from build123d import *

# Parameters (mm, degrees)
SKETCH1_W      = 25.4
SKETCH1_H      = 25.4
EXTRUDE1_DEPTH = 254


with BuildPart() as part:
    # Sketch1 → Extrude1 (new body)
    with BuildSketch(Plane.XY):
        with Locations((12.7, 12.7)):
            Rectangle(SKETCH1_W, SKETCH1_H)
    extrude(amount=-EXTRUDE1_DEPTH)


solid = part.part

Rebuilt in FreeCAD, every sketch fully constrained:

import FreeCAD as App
import Part
import Sketcher
Q = App.Units.Quantity


def add_polygon(sketch, points):
    """Adds a closed chain of lines whose ends are joined by coincident constraints."""
    first, n = sketch.GeometryCount, len(points)
    for a, b in zip(points, points[1:] + points[:1]):
        sketch.addGeometry(Part.LineSegment(App.Vector(*a, 0), App.Vector(*b, 0)), False)
    for i in range(n):
        sketch.addConstraint(Sketcher.Constraint("Coincident", first + i, 2, first + (i + 1) % n, 1))

doc = App.newDocument("Part")
body = doc.addObject("PartDesign::Body", "Body")

sketch1 = doc.addObject("Sketcher::SketchObject", "Sketch")
body.addObject(sketch1)
sketch1.AttachmentSupport = (doc.XY_Plane, [""])
sketch1.MapMode = "FlatFace"
add_polygon(sketch1, [(0, 25), (0, 0), (25, 0), (25, 25)])
sketch1.addConstraint([
    Sketcher.Constraint("Vertical", 0),
    Sketcher.Constraint("Horizontal", 1),
    Sketcher.Constraint("Vertical", 2),
    Sketcher.Constraint("Horizontal", 3),
    Sketcher.Constraint("Coincident", 0, 2, -1, 1),
    Sketcher.Constraint("Equal", 3, 0),
    Sketcher.Constraint("DistanceX", 1, 1, 1, 2, Q("1 in")),
])
pad1 = doc.addObject("PartDesign::Pad", "Pad")
body.addObject(pad1)
pad1.Profile = sketch1
pad1.Length = Q("10 in")
pad1.Reversed = True

doc.recompute()
